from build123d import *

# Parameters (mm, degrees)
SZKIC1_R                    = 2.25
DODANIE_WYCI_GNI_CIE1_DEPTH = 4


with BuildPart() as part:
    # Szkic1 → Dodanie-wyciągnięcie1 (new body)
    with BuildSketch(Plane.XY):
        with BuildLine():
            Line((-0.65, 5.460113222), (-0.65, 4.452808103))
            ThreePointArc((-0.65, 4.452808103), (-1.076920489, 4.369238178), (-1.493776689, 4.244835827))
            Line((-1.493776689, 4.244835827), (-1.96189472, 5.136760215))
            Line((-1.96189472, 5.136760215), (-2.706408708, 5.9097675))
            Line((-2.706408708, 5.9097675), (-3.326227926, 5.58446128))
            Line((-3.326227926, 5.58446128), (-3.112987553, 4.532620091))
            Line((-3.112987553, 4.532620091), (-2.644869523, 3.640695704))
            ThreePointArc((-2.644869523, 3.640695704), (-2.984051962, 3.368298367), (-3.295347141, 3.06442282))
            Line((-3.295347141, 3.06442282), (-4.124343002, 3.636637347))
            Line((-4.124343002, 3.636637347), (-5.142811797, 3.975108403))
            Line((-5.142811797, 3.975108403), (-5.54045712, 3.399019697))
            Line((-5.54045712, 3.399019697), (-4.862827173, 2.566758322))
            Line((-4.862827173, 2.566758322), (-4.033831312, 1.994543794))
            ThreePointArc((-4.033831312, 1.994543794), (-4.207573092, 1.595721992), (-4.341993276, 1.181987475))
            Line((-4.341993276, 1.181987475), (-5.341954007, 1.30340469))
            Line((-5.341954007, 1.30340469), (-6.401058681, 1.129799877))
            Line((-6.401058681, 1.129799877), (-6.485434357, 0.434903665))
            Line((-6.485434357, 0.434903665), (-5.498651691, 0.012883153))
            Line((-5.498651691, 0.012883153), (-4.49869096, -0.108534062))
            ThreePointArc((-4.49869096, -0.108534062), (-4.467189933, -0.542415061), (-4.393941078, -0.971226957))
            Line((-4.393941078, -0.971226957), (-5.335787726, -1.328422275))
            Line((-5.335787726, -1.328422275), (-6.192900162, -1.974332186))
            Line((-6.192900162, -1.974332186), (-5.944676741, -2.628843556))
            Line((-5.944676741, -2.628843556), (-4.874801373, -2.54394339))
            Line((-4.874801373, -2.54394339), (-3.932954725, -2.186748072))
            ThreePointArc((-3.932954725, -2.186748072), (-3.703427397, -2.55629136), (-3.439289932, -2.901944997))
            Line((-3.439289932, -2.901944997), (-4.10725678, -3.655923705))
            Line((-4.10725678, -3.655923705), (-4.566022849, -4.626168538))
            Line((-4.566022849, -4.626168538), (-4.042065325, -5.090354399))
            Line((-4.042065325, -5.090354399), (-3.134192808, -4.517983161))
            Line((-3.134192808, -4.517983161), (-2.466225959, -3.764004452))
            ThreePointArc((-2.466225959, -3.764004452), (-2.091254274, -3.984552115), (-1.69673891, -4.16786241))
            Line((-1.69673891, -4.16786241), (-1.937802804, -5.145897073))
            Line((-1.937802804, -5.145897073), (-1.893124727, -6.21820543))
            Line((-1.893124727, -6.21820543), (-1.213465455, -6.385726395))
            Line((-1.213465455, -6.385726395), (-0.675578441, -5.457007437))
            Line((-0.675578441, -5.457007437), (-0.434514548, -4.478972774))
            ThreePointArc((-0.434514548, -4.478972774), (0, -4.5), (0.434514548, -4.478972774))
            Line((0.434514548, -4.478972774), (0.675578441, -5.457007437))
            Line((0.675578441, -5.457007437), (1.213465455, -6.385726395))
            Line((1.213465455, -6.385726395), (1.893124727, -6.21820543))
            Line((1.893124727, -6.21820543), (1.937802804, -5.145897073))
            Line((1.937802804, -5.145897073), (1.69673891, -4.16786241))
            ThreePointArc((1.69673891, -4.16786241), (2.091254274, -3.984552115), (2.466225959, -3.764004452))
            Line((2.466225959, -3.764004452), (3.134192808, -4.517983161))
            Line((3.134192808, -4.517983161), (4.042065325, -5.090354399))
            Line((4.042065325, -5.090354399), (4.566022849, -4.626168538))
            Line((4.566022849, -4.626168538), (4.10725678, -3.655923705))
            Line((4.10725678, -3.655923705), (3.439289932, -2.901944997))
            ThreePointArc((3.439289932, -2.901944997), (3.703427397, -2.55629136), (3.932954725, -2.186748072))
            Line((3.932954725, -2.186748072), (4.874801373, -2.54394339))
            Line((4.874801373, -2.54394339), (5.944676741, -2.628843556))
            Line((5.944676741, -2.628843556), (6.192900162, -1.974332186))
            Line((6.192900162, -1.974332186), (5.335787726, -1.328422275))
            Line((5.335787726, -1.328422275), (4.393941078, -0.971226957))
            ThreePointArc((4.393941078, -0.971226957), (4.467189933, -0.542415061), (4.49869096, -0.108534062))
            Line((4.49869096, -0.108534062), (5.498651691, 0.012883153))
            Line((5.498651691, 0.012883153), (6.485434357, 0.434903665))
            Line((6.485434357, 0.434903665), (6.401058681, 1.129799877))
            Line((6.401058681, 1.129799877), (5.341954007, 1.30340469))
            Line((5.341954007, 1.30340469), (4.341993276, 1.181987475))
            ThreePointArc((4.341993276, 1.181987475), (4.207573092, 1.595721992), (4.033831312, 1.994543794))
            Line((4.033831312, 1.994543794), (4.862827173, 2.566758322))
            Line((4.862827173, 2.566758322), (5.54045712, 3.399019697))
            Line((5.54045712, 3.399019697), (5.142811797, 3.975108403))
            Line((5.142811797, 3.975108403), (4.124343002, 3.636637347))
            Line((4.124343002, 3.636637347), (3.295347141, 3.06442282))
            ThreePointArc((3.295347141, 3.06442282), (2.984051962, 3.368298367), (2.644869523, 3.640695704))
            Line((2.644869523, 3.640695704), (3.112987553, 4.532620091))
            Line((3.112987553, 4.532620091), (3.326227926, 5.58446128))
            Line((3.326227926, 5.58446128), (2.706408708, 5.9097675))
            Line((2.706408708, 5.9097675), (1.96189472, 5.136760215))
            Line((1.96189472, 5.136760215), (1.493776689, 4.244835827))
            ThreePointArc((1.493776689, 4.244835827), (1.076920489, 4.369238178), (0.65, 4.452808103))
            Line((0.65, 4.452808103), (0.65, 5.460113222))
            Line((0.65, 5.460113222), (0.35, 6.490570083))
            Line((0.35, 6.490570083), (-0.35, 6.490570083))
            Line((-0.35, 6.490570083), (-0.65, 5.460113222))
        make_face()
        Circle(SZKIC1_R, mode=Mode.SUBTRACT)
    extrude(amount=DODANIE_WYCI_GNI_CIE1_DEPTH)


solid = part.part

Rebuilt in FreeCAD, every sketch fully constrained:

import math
import FreeCAD as App
import Part
import Sketcher

V = App.Vector
Q = App.Units.Quantity

doc = App.newDocument("Part")
params = doc.addObject("Spreadsheet::Sheet", "Params")
for row, (alias, value) in enumerate([
    ("sketch1_diameter", "4.5 mm"),
    ("sketch1_radius", "4.5 mm"),
    ("sketch1_width", "0.7 mm"),
    ("sketch1_length", "0.7 mm"),
    ("pad1_length", "4 mm"),
], start=1):
    params.set(f"A{row}", alias)
    params.set(f"B{row}", "=" + value)
    params.setAlias(f"B{row}", alias)

body = doc.addObject("PartDesign::Body", "Body")

sketch1 = body.newObject("Sketcher::SketchObject", "Sketch")
sketch1.AttachmentSupport = (doc.getObject("XY_Plane"), [""])
sketch1.MapMode = "FlatFace"
sketch1.addGeometry([
    Part.LineSegment(V(-0.7, 5.5, 0), V(-0.7, 4.5, 0)),
    Part.ArcOfCircle(Part.Circle(V(0, 0, 0), V(0, 0, 1), 4.5), math.radians(98.31), math.radians(109.39)),
    Part.LineSegment(V(-1.5, 4.2, 0), V(-2, 5.1, 0)),
    Part.LineSegment(V(-2, 5.1, 0), V(-2.7, 5.9, 0)),
    Part.LineSegment(V(-2.7, 5.9, 0), V(-3.3, 5.6, 0)),
    Part.LineSegment(V(-3.3, 5.6, 0), V(-3.1, 4.5, 0)),
    Part.LineSegment(V(-3.1, 4.5, 0), V(-2.6, 3.6, 0)),
    Part.ArcOfCircle(Part.Circle(V(0, 0, 0), V(0, 0, 1), 4.5), math.radians(126), math.radians(137.08)),
    Part.LineSegment(V(-3.3, 3.1, 0), V(-4.1, 3.6, 0)),
    Part.LineSegment(V(-4.1, 3.6, 0), V(-5.1, 4, 0)),
    Part.LineSegment(V(-5.1, 4, 0), V(-5.5, 3.4, 0)),
    Part.LineSegment(V(-5.5, 3.4, 0), V(-4.9, 2.6, 0)),
    Part.LineSegment(V(-4.9, 2.6, 0), V(-4, 2, 0)),
    Part.ArcOfCircle(Part.Circle(V(0, 0, 0), V(0, 0, 1), 4.5), math.radians(153.69), math.radians(164.77)),
    Part.LineSegment(V(-4.3, 1.2, 0), V(-5.3, 1.3, 0)),
    Part.LineSegment(V(-5.3, 1.3, 0), V(-6.4, 1.1, 0)),
    Part.LineSegment(V(-6.4, 1.1, 0), V(-6.5, 0.4, 0)),
    Part.LineSegment(V(-6.5, 0.4, 0), V(-5.5, 0, 0)),
    Part.LineSegment(V(-5.5, 0, 0), V(-4.5, -0.1, 0)),
    Part.ArcOfCircle(Part.Circle(V(0, 0, 0), V(0, 0, 1), 4.5), math.radians(-178.62), math.radians(-167.54)),
    Part.LineSegment(V(-4.4, -1, 0), V(-5.3, -1.3, 0)),
    Part.LineSegment(V(-5.3, -1.3, 0), V(-6.2, -2, 0)),
    Part.LineSegment(V(-6.2, -2, 0), V(-5.9, -2.6, 0)),
    Part.LineSegment(V(-5.9, -2.6, 0), V(-4.9, -2.5, 0)),
    Part.LineSegment(V(-4.9, -2.5, 0), V(-3.9, -2.2, 0)),
    Part.ArcOfCircle(Part.Circle(V(0, 0, 0), V(0, 0, 1), 4.5), math.radians(-150.93), math.radians(-139.84)),
    Part.LineSegment(V(-3.4, -2.9, 0), V(-4.1, -3.7, 0)),
    Part.LineSegment(V(-4.1, -3.7, 0), V(-4.6, -4.6, 0)),
    Part.LineSegment(V(-4.6, -4.6, 0), V(-4, -5.1, 0)),
    Part.LineSegment(V(-4, -5.1, 0), V(-3.1, -4.5, 0)),
    Part.LineSegment(V(-3.1, -4.5, 0), V(-2.5, -3.8, 0)),
    Part.ArcOfCircle(Part.Circle(V(0, 0, 0), V(0, 0, 1), 4.5), math.radians(-123.23), math.radians(-112.15)),
    Part.LineSegment(V(-1.7, -4.2, 0), V(-1.9, -5.1, 0)),
    Part.LineSegment(V(-1.9, -5.1, 0), V(-1.9, -6.2, 0)),
    Part.LineSegment(V(-1.9, -6.2, 0), V(-1.2, -6.4, 0)),
    Part.LineSegment(V(-1.2, -6.4, 0), V(-0.7, -5.5, 0)),
    Part.LineSegment(V(-0.7, -5.5, 0), V(-0.4, -4.5, 0)),
    Part.ArcOfCircle(Part.Circle(V(0, 0, 0), V(0, 0, 1), 4.5), math.radians(-95.54), math.radians(-84.46)),
    Part.LineSegment(V(0.4, -4.5, 0), V(0.7, -5.5, 0)),
    Part.LineSegment(V(0.7, -5.5, 0), V(1.2, -6.4, 0)),
    Part.LineSegment(V(1.2, -6.4, 0), V(1.9, -6.2, 0)),
    Part.LineSegment(V(1.9, -6.2, 0), V(1.9, -5.1, 0)),
    Part.LineSegment(V(1.9, -5.1, 0), V(1.7, -4.2, 0)),
    Part.ArcOfCircle(Part.Circle(V(0, 0, 0), V(0, 0, 1), 4.5), math.radians(-67.85), math.radians(-56.77)),
    Part.LineSegment(V(2.5, -3.8, 0), V(3.1, -4.5, 0)),
    Part.LineSegment(V(3.1, -4.5, 0), V(4, -5.1, 0)),
    Part.LineSegment(V(4, -5.1, 0), V(4.6, -4.6, 0)),
    Part.LineSegment(V(4.6, -4.6, 0), V(4.1, -3.7, 0)),
    Part.LineSegment(V(4.1, -3.7, 0), V(3.4, -2.9, 0)),
    Part.ArcOfCircle(Part.Circle(V(0, 0, 0), V(0, 0, 1), 4.5), math.radians(-40.16), math.radians(-29.07)),
    Part.LineSegment(V(3.9, -2.2, 0), V(4.9, -2.5, 0)),
    Part.LineSegment(V(4.9, -2.5, 0), V(5.9, -2.6, 0)),
    Part.LineSegment(V(5.9, -2.6, 0), V(6.2, -2, 0)),
    Part.LineSegment(V(6.2, -2, 0), V(5.3, -1.3, 0)),
    Part.LineSegment(V(5.3, -1.3, 0), V(4.4, -1, 0)),
    Part.ArcOfCircle(Part.Circle(V(0, 0, 0), V(0, 0, 1), 4.5), math.radians(-12.46), math.radians(-1.38)),
    Part.LineSegment(V(4.5, -0.1, 0), V(5.5, 0, 0)),
    Part.LineSegment(V(5.5, 0, 0), V(6.5, 0.4, 0)),
    Part.LineSegment(V(6.5, 0.4, 0), V(6.4, 1.1, 0)),
    Part.LineSegment(V(6.4, 1.1, 0), V(5.3, 1.3, 0)),
    Part.LineSegment(V(5.3, 1.3, 0), V(4.3, 1.2, 0)),
    Part.ArcOfCircle(Part.Circle(V(0, 0, 0), V(0, 0, 1), 4.5), math.radians(15.23), math.radians(26.31)),
    Part.LineSegment(V(4, 2, 0), V(4.9, 2.6, 0)),
    Part.LineSegment(V(4.9, 2.6, 0), V(5.5, 3.4, 0)),
    Part.LineSegment(V(5.5, 3.4, 0), V(5.1, 4, 0)),
    Part.LineSegment(V(5.1, 4, 0), V(4.1, 3.6, 0)),
    Part.LineSegment(V(4.1, 3.6, 0), V(3.3, 3.1, 0)),
    Part.ArcOfCircle(Part.Circle(V(0, 0, 0), V(0, 0, 1), 4.5), math.radians(42.92), math.radians(54)),
    Part.LineSegment(V(2.6, 3.6, 0), V(3.1, 4.5, 0)),
    Part.LineSegment(V(3.1, 4.5, 0), V(3.3, 5.6, 0)),
    Part.LineSegment(V(3.3, 5.6, 0), V(2.7, 5.9, 0)),
    Part.LineSegment(V(2.7, 5.9, 0), V(2, 5.1, 0)),
    Part.LineSegment(V(2, 5.1, 0), V(1.5, 4.2, 0)),
    Part.ArcOfCircle(Part.Circle(V(0, 0, 0), V(0, 0, 1), 4.5), math.radians(70.61), math.radians(81.69)),
    Part.LineSegment(V(0.7, 4.5, 0), V(0.7, 5.5, 0)),
    Part.LineSegment(V(0.7, 5.5, 0), V(0.3, 6.5, 0)),
    Part.LineSegment(V(0.3, 6.5, 0), V(-0.3, 6.5, 0)),
    Part.LineSegment(V(-0.3, 6.5, 0), V(-0.7, 5.5, 0)),
    Part.Circle(V(0, 0, 0), V(0, 0, 1), 2.2),
], False)
sketch1.addConstraint([
    Sketcher.Constraint("Coincident", 0, 2, 1, 1),
    Sketcher.Constraint("Coincident", 1, 2, 2, 1),
    Sketcher.Constraint("Coincident", 2, 2, 3, 1),
    Sketcher.Constraint("Coincident", 3, 2, 4, 1),
    Sketcher.Constraint("Coincident", 4, 2, 5, 1),
    Sketcher.Constraint("Coincident", 5, 2, 6, 1),
    Sketcher.Constraint("Coincident", 6, 2, 7, 1),
    Sketcher.Constraint("Coincident", 7, 2, 8, 1),
    Sketcher.Constraint("Coincident", 8, 2, 9, 1),
    Sketcher.Constraint("Coincident", 9, 2, 10, 1),
    Sketcher.Constraint("Coincident", 10, 2, 11, 1),
    Sketcher.Constraint("Coincident", 11, 2, 12, 1),
    Sketcher.Constraint("Coincident", 12, 2, 13, 1),
    Sketcher.Constraint("Coincident", 13, 2, 14, 1),
    Sketcher.Constraint("Coincident", 14, 2, 15, 1),
    Sketcher.Constraint("Coincident", 15, 2, 16, 1),
    Sketcher.Constraint("Coincident", 16, 2, 17, 1),
    Sketcher.Constraint("Coincident", 17, 2, 18, 1),
    Sketcher.Constraint("Coincident", 18, 2, 19, 1),
    Sketcher.Constraint("Coincident", 19, 2, 20, 1),
    Sketcher.Constraint("Coincident", 20, 2, 21, 1),
    Sketcher.Constraint("Coincident", 21, 2, 22, 1),
    Sketcher.Constraint("Coincident", 22, 2, 23, 1),
    Sketcher.Constraint("Coincident", 23, 2, 24, 1),
    Sketcher.Constraint("Coincident", 24, 2, 25, 1),
    Sketcher.Constraint("Coincident", 25, 2, 26, 1),
    Sketcher.Constraint("Coincident", 26, 2, 27, 1),
    Sketcher.Constraint("Coincident", 27, 2, 28, 1),
    Sketcher.Constraint("Coincident", 28, 2, 29, 1),
    Sketcher.Constraint("Coincident", 29, 2, 30, 1),
    Sketcher.Constraint("Coincident", 30, 2, 31, 1),
    Sketcher.Constraint("Coincident", 31, 2, 32, 1),
    Sketcher.Constraint("Coincident", 32, 2, 33, 1),
    Sketcher.Constraint("Coincident", 33, 2, 34, 1),
    Sketcher.Constraint("Coincident", 34, 2, 35, 1),
    Sketcher.Constraint("Coincident", 35, 2, 36, 1),
    Sketcher.Constraint("Coincident", 36, 2, 37, 1),
    Sketcher.Constraint("Coincident", 37, 2, 38, 1),
    Sketcher.Constraint("Coincident", 38, 2, 39, 1),
    Sketcher.Constraint("Coincident", 39, 2, 40, 1),
    Sketcher.Constraint("Coincident", 40, 2, 41, 1),
    Sketcher.Constraint("Coincident", 41, 2, 42, 1),
    Sketcher.Constraint("Coincident", 42, 2, 43, 1),
    Sketcher.Constraint("Coincident", 43, 2, 44, 1),
    Sketcher.Constraint("Coincident", 44, 2, 45, 1),
    Sketcher.Constraint("Coincident", 45, 2, 46, 1),
    Sketcher.Constraint("Coincident", 46, 2, 47, 1),
    Sketcher.Constraint("Coincident", 47, 2, 48, 1),
    Sketcher.Constraint("Coincident", 48, 2, 49, 1),
    Sketcher.Constraint("Coincident", 49, 2, 50, 1),
    Sketcher.Constraint("Coincident", 50, 2, 51, 1),
    Sketcher.Constraint("Coincident", 51, 2, 52, 1),
    Sketcher.Constraint("Coincident", 52, 2, 53, 1),
    Sketcher.Constraint("Coincident", 53, 2, 54, 1),
    Sketcher.Constraint("Coincident", 54, 2, 55, 1),
    Sketcher.Constraint("Coincident", 55, 2, 56, 1),
    Sketcher.Constraint("Coincident", 56, 2, 57, 1),
    Sketcher.Constraint("Coincident", 57, 2, 58, 1),
    Sketcher.Constraint("Coincident", 58, 2, 59, 1),
    Sketcher.Constraint("Coincident", 59, 2, 60, 1),
    Sketcher.Constraint("Coincident", 60, 2, 61, 1),
    Sketcher.Constraint("Coincident", 61, 2, 62, 1),
    Sketcher.Constraint("Coincident", 62, 2, 63, 1),
    Sketcher.Constraint("Coincident", 63, 2, 64, 1),
    Sketcher.Constraint("Coincident", 64, 2, 65, 1),
    Sketcher.Constraint("Coincident", 65, 2, 66, 1),
    Sketcher.Constraint("Coincident", 66, 2, 67, 1),
    Sketcher.Constraint("Coincident", 67, 2, 68, 1),
    Sketcher.Constraint("Coincident", 68, 2, 69, 1),
    Sketcher.Constraint("Coincident", 69, 2, 70, 1),
    Sketcher.Constraint("Coincident", 70, 2, 71, 1),
    Sketcher.Constraint("Coincident", 71, 2, 72, 1),
    Sketcher.Constraint("Coincident", 72, 2, 73, 1),
    Sketcher.Constraint("Coincident", 73, 2, 74, 1),
    Sketcher.Constraint("Coincident", 74, 2, 75, 1),
    Sketcher.Constraint("Coincident", 75, 2, 76, 1),
    Sketcher.Constraint("Coincident", 76, 2, 77, 1),
    Sketcher.Constraint("Coincident", 77, 2, 0, 1),
    Sketcher.Constraint("Vertical", 0),
    Sketcher.Constraint("Vertical", 74),
    Sketcher.Constraint("Horizontal", 76),
    Sketcher.Constraint("Coincident", 1, 3, -1, 1),
    Sketcher.Constraint("Coincident", 7, 3, -1, 1),
    Sketcher.Constraint("Coincident", 13, 3, -1, 1),
    Sketcher.Constraint("Coincident", 19, 3, -1, 1),
    Sketcher.Constraint("Coincident", 25, 3, -1, 1),
    Sketcher.Constraint("Coincident", 31, 3, -1, 1),
    Sketcher.Constraint("Coincident", 37, 3, -1, 1),
    Sketcher.Constraint("Coincident", 43, 3, -1, 1),
    Sketcher.Constraint("Coincident", 49, 3, -1, 1),
    Sketcher.Constraint("Coincident", 55, 3, -1, 1),
    Sketcher.Constraint("Coincident", 61, 3, -1, 1),
    Sketcher.Constraint("Coincident", 67, 3, -1, 1),
    Sketcher.Constraint("Coincident", 73, 3, -1, 1),
    Sketcher.Constraint("Coincident", 78, 3, -1, 1),
    Sketcher.Constraint("Equal", 1, 7),
    Sketcher.Constraint("Equal", 7, 13),
    Sketcher.Constraint("Equal", 13, 19),
    Sketcher.Constraint("Equal", 19, 25),
    Sketcher.Constraint("Equal", 25, 31),
    Sketcher.Constraint("Equal", 31, 37),
    Sketcher.Constraint("Equal", 37, 43),
    Sketcher.Constraint("Equal", 43, 49),
    Sketcher.Constraint("Equal", 49, 55),
    Sketcher.Constraint("Equal", 55, 61),
    Sketcher.Constraint("Equal", 61, 67),
    Sketcher.Constraint("Equal", 67, 73),
    Sketcher.Constraint("Symmetric", 35, 2, 38, 2, -2),
    Sketcher.Constraint("Symmetric", 34, 2, 39, 2, -2),
    Sketcher.Constraint("Symmetric", 33, 2, 40, 2, -2),
    Sketcher.Constraint("Symmetric", 32, 2, 41, 2, -2),
    Sketcher.Constraint("Symmetric", 29, 2, 44, 2, -2),
    Sketcher.Constraint("Symmetric", 28, 2, 45, 2, -2),
    Sketcher.Constraint("Symmetric", 27, 2, 46, 2, -2),
    Sketcher.Constraint("Symmetric", 26, 2, 47, 2, -2),
    Sketcher.Constraint("Symmetric", 23, 2, 50, 2, -2),
    Sketcher.Constraint("Symmetric", 22, 2, 51, 2, -2),
    Sketcher.Constraint("Symmetric", 21, 2, 52, 2, -2),
    Sketcher.Constraint("Symmetric", 20, 2, 53, 2, -2),
    Sketcher.Constraint("Symmetric", 17, 2, 56, 2, -2),
    Sketcher.Constraint("Symmetric", 16, 2, 57, 2, -2),
    Sketcher.Constraint("Symmetric", 15, 2, 58, 2, -2),
    Sketcher.Constraint("Symmetric", 14, 2, 59, 2, -2),
    Sketcher.Constraint("Symmetric", 11, 2, 62, 2, -2),
    Sketcher.Constraint("Symmetric", 10, 2, 63, 2, -2),
    Sketcher.Constraint("Symmetric", 9, 2, 64, 2, -2),
    Sketcher.Constraint("Symmetric", 8, 2, 65, 2, -2),
    Sketcher.Constraint("Symmetric", 5, 2, 68, 2, -2),
    Sketcher.Constraint("Symmetric", 4, 2, 69, 2, -2),
    Sketcher.Constraint("Symmetric", 3, 2, 70, 2, -2),
    Sketcher.Constraint("Symmetric", 2, 2, 71, 2, -2),
    Sketcher.Constraint("Symmetric", 74, 2, 77, 2, -2),
    Sketcher.Constraint("Perpendicular", 2, 4),
    Sketcher.Constraint("Perpendicular", 4, 6),
    Sketcher.Constraint("Perpendicular", 8, 10),
    Sketcher.Constraint("Perpendicular", 10, 12),
    Sketcher.Constraint("Perpendicular", 14, 16),
    Sketcher.Constraint("Perpendicular", 16, 18),
    Sketcher.Constraint("Perpendicular", 20, 22),
    Sketcher.Constraint("Perpendicular", 22, 24),
    Sketcher.Constraint("Perpendicular", 26, 28),
    Sketcher.Constraint("Perpendicular", 28, 30),
    Sketcher.Constraint("Perpendicular", 32, 34),
    Sketcher.Constraint("Perpendicular", 34, 36),
    Sketcher.Constraint("Perpendicular", 38, 40),
    Sketcher.Constraint("Perpendicular", 40, 42),
    Sketcher.Constraint("Perpendicular", 44, 46),
    Sketcher.Constraint("Perpendicular", 46, 48),
    Sketcher.Constraint("Perpendicular", 50, 52),
    Sketcher.Constraint("Perpendicular", 52, 54),
    Sketcher.Constraint("Perpendicular", 56, 58),
    Sketcher.Constraint("Perpendicular", 58, 60),
    Sketcher.Constraint("Perpendicular", 62, 64),
    Sketcher.Constraint("Perpendicular", 64, 66),
    Sketcher.Constraint("Perpendicular", 68, 70),
    Sketcher.Constraint("Perpendicular", 70, 72),
    Sketcher.Constraint("Equal", 3, 5),
    Sketcher.Constraint("Equal", 2, 6),
    Sketcher.Constraint("Equal", 6, 8),
    Sketcher.Constraint("Equal", 5, 9),
    Sketcher.Constraint("Equal", 4, 10),
    Sketcher.Constraint("Equal", 9, 11),
    Sketcher.Constraint("Equal", 8, 12),
    Sketcher.Constraint("Equal", 12, 14),
    Sketcher.Constraint("Equal", 11, 15),
    Sketcher.Constraint("Equal", 10, 16),
    Sketcher.Constraint("Equal", 15, 17),
    Sketcher.Constraint("Equal", 14, 18),
    Sketcher.Constraint("Equal", 18, 20),
    Sketcher.Constraint("Equal", 17, 21),
    Sketcher.Constraint("Equal", 16, 22),
    Sketcher.Constraint("Equal", 21, 23),
    Sketcher.Constraint("Equal", 20, 24),
    Sketcher.Constraint("Equal", 24, 26),
    Sketcher.Constraint("Equal", 23, 27),
    Sketcher.Constraint("Equal", 22, 28),
    Sketcher.Constraint("Equal", 27, 29),
    Sketcher.Constraint("Equal", 26, 30),
    Sketcher.Constraint("Equal", 30, 32),
    Sketcher.Constraint("Equal", 29, 33),
    Sketcher.Constraint("Equal", 28, 34),
    Sketcher.Constraint("Equal", 33, 35),
    Sketcher.Constraint("Equal", 32, 36),
    Sketcher.Constraint("Equal", 71, 75),
    Sketcher.Constraint("Equal", 75, 77),
    Sketcher.Constraint("Diameter", 78, Q("4.5 mm")),
    Sketcher.Constraint("Radius", 1, Q("4.5 mm")),
    Sketcher.Constraint("DistanceX", 76, 2, 76, 1, Q("0.7 mm")),
    Sketcher.Constraint("Distance", 4, Q("0.7 mm")),
    Sketcher.Constraint("DistanceX", 0, 2, -1, 1, Q("0.65 mm")),
    Sketcher.Constraint("DistanceY", -1, 1, 15, 2, Q("1.1298 mm")),
    Sketcher.Constraint("DistanceX", 21, 2, -1, 1, Q("6.1929 mm")),
    Sketcher.Constraint("DistanceX", 23, 2, -1, 1, Q("4.874801 mm")),
    Sketcher.Constraint("Distance", 3, Q("1.073239 mm")),
    Sketcher.Constraint("DistanceY", 0, 2, 0, 1, Q("1.007305 mm")),
    Sketcher.Constraint("DistanceY", -1, 1, 2, 2, Q("5.13676 mm")),
    Sketcher.Constraint("DistanceX", 3, 2, -1, 1, Q("2.706409 mm")),
    Sketcher.Constraint("DistanceY", -1, 1, 4, 2, Q("5.584461 mm")),
    Sketcher.Constraint("DistanceY", -1, 1, 5, 2, Q("4.53262 mm")),
    Sketcher.Constraint("DistanceX", 9, 2, -1, 1, Q("5.142812 mm")),
    Sketcher.Constraint("DistanceY", -1, 1, 9, 2, Q("3.975108 mm")),
    Sketcher.Constraint("DistanceY", -1, 1, 10, 2, Q("3.39902 mm")),
    Sketcher.Constraint("DistanceX", 15, 2, -1, 1, Q("6.401059 mm")),
    Sketcher.Constraint("DistanceX", 17, 2, -1, 1, Q("5.498652 mm")),
    Sketcher.Constraint("DistanceX", 19, 2, -1, 1, Q("4.393941 mm")),
    Sketcher.Constraint("DistanceX", 25, 2, -1, 1, Q("3.43929 mm")),
    Sketcher.Constraint("DistanceY", 27, 2, -1, 1, Q("4.626169 mm")),
    Sketcher.Constraint("DistanceX", 31, 2, -1, 1, Q("1.696739 mm")),
    Sketcher.Constraint("DistanceX", 35, 2, -1, 1, Q("0.675578 mm")),
    Sketcher.Constraint("DistanceX", 26, 2, -1, 1, Q("4.107257 mm")),
    Sketcher.Constraint("DistanceX", 32, 2, -1, 1, Q("1.937803 mm")),
])
sketch1.setExpression("Constraints[185]", "Params.sketch1_diameter")
sketch1.setExpression("Constraints[186]", "Params.sketch1_radius")
sketch1.setExpression("Constraints[187]", "Params.sketch1_width")
sketch1.setExpression("Constraints[188]", "Params.sketch1_length")
pad1 = body.newObject("PartDesign::Pad", "Pad")
pad1.Profile = sketch1
pad1.setExpression("Length", "Params.pad1_length")

doc.recompute()
